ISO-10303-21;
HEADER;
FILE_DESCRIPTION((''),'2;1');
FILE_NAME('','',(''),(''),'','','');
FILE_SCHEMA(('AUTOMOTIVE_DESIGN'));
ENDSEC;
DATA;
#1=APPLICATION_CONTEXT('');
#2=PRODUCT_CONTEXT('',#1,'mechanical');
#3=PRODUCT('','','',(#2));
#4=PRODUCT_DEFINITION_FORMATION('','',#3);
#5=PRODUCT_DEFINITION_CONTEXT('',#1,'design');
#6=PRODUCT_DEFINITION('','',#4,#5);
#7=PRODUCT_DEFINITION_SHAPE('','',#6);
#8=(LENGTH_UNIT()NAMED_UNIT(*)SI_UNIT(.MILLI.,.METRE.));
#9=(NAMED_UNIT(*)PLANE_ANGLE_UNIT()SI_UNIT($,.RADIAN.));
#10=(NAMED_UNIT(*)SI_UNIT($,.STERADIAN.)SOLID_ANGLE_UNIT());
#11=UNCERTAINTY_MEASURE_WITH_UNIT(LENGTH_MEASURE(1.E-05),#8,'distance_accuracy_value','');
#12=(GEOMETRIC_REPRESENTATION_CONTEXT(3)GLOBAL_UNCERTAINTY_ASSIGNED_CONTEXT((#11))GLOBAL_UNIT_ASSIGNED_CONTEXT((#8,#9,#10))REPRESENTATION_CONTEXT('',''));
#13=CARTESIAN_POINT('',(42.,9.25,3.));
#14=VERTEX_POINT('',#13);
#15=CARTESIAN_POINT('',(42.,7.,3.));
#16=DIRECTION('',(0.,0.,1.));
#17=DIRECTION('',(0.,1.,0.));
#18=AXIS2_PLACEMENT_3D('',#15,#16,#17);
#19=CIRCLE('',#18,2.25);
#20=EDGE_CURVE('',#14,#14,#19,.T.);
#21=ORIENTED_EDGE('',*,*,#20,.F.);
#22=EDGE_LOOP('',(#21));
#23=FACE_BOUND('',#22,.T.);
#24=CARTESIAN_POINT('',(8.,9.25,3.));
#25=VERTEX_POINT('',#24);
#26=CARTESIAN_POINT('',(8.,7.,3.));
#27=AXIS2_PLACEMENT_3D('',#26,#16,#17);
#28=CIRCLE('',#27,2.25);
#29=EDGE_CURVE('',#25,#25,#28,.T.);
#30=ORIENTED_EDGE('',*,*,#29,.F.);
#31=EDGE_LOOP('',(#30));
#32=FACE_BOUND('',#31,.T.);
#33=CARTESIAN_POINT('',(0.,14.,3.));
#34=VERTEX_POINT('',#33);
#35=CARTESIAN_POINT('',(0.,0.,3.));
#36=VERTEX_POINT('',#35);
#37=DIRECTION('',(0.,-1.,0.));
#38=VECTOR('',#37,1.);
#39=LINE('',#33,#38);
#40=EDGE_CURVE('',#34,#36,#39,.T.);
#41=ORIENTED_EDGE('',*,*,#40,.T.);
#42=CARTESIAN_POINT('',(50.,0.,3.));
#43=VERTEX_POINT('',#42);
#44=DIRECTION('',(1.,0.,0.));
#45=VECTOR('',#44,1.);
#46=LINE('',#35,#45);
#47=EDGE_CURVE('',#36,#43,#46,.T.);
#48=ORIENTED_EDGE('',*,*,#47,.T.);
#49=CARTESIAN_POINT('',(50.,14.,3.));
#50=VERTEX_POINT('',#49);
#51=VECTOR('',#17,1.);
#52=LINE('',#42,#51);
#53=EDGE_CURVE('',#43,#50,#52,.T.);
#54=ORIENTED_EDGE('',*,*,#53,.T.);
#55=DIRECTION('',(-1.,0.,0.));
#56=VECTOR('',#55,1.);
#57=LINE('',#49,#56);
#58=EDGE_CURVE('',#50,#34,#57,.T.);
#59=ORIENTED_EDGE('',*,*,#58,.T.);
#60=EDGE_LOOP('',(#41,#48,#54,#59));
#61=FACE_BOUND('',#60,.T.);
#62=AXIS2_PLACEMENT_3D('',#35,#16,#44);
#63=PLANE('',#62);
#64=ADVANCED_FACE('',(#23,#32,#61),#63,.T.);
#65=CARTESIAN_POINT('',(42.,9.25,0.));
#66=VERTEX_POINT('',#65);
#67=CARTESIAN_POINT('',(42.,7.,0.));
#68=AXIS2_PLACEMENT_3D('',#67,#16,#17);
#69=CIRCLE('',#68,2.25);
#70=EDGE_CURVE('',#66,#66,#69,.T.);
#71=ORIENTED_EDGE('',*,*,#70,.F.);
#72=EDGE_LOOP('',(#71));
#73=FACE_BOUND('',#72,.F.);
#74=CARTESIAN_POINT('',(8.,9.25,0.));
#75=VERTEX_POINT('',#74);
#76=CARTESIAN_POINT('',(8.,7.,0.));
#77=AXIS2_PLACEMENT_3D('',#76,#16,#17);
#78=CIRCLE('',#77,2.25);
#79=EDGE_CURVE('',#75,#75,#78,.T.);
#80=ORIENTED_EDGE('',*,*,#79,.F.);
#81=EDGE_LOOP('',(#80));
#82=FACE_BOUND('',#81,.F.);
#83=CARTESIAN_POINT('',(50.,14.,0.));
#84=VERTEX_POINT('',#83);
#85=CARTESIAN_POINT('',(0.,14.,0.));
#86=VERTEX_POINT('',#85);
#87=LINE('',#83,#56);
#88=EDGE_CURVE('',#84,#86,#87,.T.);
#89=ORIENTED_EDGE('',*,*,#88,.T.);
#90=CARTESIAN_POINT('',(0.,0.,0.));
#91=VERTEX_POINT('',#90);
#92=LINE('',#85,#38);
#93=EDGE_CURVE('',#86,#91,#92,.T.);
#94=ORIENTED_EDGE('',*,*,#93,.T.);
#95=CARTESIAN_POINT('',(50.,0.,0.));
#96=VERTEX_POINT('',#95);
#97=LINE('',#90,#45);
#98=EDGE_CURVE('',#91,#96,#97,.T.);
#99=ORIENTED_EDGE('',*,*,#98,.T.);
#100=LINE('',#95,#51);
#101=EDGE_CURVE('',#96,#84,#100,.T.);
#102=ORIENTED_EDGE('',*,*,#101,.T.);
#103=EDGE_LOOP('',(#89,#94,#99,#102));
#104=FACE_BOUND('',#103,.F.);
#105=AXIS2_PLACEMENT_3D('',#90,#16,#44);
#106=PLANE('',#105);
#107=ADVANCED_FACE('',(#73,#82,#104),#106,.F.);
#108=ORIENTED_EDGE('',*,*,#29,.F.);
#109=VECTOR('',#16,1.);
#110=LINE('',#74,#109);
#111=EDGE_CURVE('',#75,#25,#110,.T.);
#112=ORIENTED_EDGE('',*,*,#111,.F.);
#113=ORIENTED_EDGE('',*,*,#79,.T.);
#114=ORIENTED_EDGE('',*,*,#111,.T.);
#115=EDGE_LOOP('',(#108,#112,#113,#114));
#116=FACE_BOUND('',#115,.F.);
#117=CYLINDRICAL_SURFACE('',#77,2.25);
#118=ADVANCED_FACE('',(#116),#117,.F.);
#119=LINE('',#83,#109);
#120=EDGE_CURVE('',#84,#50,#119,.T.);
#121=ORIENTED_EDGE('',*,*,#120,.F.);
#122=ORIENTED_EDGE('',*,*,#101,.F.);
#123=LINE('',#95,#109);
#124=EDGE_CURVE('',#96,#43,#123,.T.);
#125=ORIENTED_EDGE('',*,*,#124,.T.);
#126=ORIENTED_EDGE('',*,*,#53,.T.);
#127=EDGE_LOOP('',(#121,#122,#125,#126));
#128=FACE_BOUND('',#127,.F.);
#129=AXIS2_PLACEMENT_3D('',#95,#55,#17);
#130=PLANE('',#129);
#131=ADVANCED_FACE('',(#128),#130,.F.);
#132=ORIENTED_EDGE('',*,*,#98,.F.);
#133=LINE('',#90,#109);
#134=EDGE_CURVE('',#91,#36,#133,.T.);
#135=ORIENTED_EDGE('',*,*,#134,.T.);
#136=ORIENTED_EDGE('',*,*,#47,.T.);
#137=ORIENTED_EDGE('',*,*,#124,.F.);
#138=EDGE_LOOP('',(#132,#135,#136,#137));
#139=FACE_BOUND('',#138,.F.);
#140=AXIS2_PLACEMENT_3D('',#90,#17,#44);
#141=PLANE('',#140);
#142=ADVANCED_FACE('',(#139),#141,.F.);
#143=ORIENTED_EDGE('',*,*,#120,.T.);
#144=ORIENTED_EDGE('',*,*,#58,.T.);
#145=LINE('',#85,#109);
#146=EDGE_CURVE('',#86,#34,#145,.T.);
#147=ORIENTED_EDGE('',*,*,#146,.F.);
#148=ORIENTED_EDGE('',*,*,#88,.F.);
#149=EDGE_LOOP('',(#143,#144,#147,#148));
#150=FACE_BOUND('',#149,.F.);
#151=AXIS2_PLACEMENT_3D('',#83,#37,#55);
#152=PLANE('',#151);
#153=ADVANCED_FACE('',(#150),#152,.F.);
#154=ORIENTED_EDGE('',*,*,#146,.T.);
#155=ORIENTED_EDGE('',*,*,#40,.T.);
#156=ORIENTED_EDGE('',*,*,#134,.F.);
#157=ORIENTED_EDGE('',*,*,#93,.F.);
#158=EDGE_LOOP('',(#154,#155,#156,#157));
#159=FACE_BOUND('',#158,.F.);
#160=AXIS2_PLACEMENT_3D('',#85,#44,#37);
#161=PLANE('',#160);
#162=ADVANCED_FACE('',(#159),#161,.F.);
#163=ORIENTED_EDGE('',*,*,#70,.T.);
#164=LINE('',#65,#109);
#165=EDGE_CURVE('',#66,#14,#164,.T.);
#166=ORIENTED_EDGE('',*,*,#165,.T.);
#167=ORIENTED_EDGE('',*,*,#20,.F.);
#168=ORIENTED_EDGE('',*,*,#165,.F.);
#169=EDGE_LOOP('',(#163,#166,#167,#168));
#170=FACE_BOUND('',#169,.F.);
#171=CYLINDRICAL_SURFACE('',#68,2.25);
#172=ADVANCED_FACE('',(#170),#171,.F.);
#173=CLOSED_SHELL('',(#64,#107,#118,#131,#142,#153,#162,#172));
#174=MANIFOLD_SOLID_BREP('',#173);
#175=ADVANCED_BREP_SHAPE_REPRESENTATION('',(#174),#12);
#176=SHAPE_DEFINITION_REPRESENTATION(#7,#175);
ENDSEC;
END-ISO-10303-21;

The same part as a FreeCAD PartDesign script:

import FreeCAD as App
import Part
import Sketcher

V = App.Vector


def add_polygon(sketch, points):
    """Adds a closed chain of lines whose ends are joined by coincident constraints."""
    first, n = sketch.GeometryCount, len(points)
    for a, b in zip(points, points[1:] + points[:1]):
        sketch.addGeometry(Part.LineSegment(App.Vector(*a, 0), App.Vector(*b, 0)), False)
    for i in range(n):
        sketch.addConstraint(Sketcher.Constraint("Coincident", first + i, 2, first + (i + 1) % n, 1))

doc = App.newDocument("Part")
params = doc.addObject("Spreadsheet::Sheet", "Params")
for row, (alias, value) in enumerate([
    ("sketch1_width", "50 mm"),
    ("sketch1_height", "14 mm"),
    ("pad1_length", "3 mm"),
    ("sketch2_diameter", "4.5 mm"),
    ("hole_diameter", "4.5 mm"),
], start=1):
    params.set(f"A{row}", alias)
    params.set(f"B{row}", "=" + value)
    params.setAlias(f"B{row}", alias)

body = doc.addObject("PartDesign::Body", "Body")

sketch1 = body.newObject("Sketcher::SketchObject", "Sketch")
sketch1.AttachmentSupport = (doc.getObject("XY_Plane"), [""])
sketch1.MapMode = "FlatFace"
add_polygon(sketch1, [(0, 14), (0, 0), (50, 0), (50, 14)])
sketch1.addConstraint(Sketcher.Constraint("Vertical", 0))
sketch1.addConstraint(Sketcher.Constraint("Horizontal", 1))
sketch1.addConstraint(Sketcher.Constraint("Vertical", 2))
sketch1.addConstraint(Sketcher.Constraint("Horizontal", 3))
sketch1.addConstraint(Sketcher.Constraint("Coincident", 0, 2, -1, 1))
sketch1.addConstraint(Sketcher.Constraint("DistanceX", 1, 1, 1, 2, 50.0))
sketch1.addConstraint(Sketcher.Constraint("DistanceY", 0, 2, 0, 1, 14.0))
sketch1.setExpression("Constraints[9]", "Params.sketch1_width")
sketch1.setExpression("Constraints[10]", "Params.sketch1_height")
pad1 = body.newObject("PartDesign::Pad", "Pad")
pad1.Profile = sketch1
pad1.setExpression("Length", "Params.pad1_length")

sketch2 = body.newObject("Sketcher::SketchObject", "Sketch001")
sketch2.AttachmentSupport = (doc.getObject("XY_Plane"), [""])
sketch2.MapMode = "FlatFace"
sketch2.addGeometry(Part.Circle(V(8, 7, 0), V(0, 0, 1), 2.2), False)
sketch2.addGeometry(Part.Circle(V(42, 7, 0), V(0, 0, 1), 2.2), False)
sketch2.addConstraint(Sketcher.Constraint("Equal", 0, 1))
sketch2.addConstraint(Sketcher.Constraint("Horizontal", 0, 3, 1, 3))
sketch2.addConstraint(Sketcher.Constraint("Diameter", 0, 4.5))
sketch2.addConstraint(Sketcher.Constraint("DistanceX", -1, 1, 0, 3, 8.0))
sketch2.addConstraint(Sketcher.Constraint("DistanceY", -1, 1, 0, 3, 7.0))
sketch2.addConstraint(Sketcher.Constraint("DistanceX", -1, 1, 1, 3, 42.0))
sketch2.setExpression("Constraints[2]", "Params.sketch2_diameter")
doc.recompute()
hole = body.newObject("PartDesign::Hole", "Hole")
hole.Profile = sketch2
hole.ThreadType = "None"
hole.setExpression("Diameter", "Params.hole_diameter")
hole.DepthType = "ThroughAll"
hole.Reversed = True

doc.recompute()
